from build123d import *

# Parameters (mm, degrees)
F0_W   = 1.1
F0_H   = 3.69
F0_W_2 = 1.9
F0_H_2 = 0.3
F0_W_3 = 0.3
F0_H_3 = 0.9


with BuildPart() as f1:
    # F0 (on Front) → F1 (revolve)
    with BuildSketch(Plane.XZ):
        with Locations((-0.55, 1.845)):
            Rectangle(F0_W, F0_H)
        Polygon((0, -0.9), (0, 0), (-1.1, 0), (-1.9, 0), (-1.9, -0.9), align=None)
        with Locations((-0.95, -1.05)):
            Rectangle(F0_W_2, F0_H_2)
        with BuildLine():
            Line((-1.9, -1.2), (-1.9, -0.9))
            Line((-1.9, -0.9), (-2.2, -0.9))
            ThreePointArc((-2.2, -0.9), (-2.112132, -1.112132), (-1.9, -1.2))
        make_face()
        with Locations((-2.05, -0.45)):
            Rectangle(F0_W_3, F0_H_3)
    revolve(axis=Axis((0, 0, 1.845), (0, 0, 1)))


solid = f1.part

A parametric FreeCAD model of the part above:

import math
import FreeCAD as App
import Part
import Sketcher
from FreeCAD import Vector
Q = App.Units.Quantity

doc = App.newDocument("Part")
body = doc.addObject("PartDesign::Body", "Body")

# Sketch on XZ plane
sketch1 = body.newObject("Sketcher::SketchObject", "Sketch")
sketch1.AttachmentSupport = (doc.getObject("XZ_Plane"), [""])
sketch1.MapMode = "FlatFace"
sketch1.addGeometry([
    Part.LineSegment(Vector(-1.1, 3.69, 0), Vector(-1.1, 0, 0)),  # 0
    Part.LineSegment(Vector(-1.1, 0, 0), Vector(-2.2, 0, 0)),  # 1
    Part.LineSegment(Vector(-2.2, 0, 0), Vector(-2.2, -0.9, 0)),  # 2
    Part.ArcOfCircle(Part.Circle(Vector(-1.9, -0.9, 0), Vector(0, 0, 1), 0.3), math.radians(-180), math.radians(-90)),  # 3
    Part.LineSegment(Vector(-1.9, -1.2, 0), Vector(0, -1.2, 0)),  # 4
    Part.LineSegment(Vector(0, -1.2, 0), Vector(0, 3.69, 0)),  # 5
    Part.LineSegment(Vector(0, 3.69, 0), Vector(-1.1, 3.69, 0)),  # 6
], False)
sketch1.addConstraint([
    Sketcher.Constraint("Coincident", 0, 2, 1, 1),
    Sketcher.Constraint("Coincident", 1, 2, 2, 1),
    Sketcher.Constraint("Tangent", 2, 2, 3, 1),
    Sketcher.Constraint("Tangent", 3, 2, 4, 1),
    Sketcher.Constraint("Coincident", 4, 2, 5, 1),
    Sketcher.Constraint("Coincident", 5, 2, 6, 1),
    Sketcher.Constraint("Coincident", 6, 2, 0, 1),
    Sketcher.Constraint("Vertical", 0),
    Sketcher.Constraint("Horizontal", 1),
    Sketcher.Constraint("Vertical", 2),
    Sketcher.Constraint("Horizontal", 4),
    Sketcher.Constraint("Vertical", 5),
    Sketcher.Constraint("Horizontal", 6),
    Sketcher.Constraint("PointOnObject", 0, 2, -1),
    Sketcher.Constraint("PointOnObject", 4, 2, -2),
    Sketcher.Constraint("Equal", 1, 6),
    Sketcher.Constraint("Radius", 3, Q("0.3 mm")),
    Sketcher.Constraint("DistanceX", 1, 2, 1, 1, Q("1.1 mm")),
    Sketcher.Constraint("DistanceY", 2, 2, 2, 1, Q("0.9 mm")),
    Sketcher.Constraint("DistanceY", 0, 2, 0, 1, Q("3.69 mm")),
])
revolution = body.newObject("PartDesign::Revolution", "Revolution")
revolution.Profile = sketch1
revolution.ReferenceAxis = (sketch1, ["V_Axis"])
revolution.Angle = 360

doc.recompute()
